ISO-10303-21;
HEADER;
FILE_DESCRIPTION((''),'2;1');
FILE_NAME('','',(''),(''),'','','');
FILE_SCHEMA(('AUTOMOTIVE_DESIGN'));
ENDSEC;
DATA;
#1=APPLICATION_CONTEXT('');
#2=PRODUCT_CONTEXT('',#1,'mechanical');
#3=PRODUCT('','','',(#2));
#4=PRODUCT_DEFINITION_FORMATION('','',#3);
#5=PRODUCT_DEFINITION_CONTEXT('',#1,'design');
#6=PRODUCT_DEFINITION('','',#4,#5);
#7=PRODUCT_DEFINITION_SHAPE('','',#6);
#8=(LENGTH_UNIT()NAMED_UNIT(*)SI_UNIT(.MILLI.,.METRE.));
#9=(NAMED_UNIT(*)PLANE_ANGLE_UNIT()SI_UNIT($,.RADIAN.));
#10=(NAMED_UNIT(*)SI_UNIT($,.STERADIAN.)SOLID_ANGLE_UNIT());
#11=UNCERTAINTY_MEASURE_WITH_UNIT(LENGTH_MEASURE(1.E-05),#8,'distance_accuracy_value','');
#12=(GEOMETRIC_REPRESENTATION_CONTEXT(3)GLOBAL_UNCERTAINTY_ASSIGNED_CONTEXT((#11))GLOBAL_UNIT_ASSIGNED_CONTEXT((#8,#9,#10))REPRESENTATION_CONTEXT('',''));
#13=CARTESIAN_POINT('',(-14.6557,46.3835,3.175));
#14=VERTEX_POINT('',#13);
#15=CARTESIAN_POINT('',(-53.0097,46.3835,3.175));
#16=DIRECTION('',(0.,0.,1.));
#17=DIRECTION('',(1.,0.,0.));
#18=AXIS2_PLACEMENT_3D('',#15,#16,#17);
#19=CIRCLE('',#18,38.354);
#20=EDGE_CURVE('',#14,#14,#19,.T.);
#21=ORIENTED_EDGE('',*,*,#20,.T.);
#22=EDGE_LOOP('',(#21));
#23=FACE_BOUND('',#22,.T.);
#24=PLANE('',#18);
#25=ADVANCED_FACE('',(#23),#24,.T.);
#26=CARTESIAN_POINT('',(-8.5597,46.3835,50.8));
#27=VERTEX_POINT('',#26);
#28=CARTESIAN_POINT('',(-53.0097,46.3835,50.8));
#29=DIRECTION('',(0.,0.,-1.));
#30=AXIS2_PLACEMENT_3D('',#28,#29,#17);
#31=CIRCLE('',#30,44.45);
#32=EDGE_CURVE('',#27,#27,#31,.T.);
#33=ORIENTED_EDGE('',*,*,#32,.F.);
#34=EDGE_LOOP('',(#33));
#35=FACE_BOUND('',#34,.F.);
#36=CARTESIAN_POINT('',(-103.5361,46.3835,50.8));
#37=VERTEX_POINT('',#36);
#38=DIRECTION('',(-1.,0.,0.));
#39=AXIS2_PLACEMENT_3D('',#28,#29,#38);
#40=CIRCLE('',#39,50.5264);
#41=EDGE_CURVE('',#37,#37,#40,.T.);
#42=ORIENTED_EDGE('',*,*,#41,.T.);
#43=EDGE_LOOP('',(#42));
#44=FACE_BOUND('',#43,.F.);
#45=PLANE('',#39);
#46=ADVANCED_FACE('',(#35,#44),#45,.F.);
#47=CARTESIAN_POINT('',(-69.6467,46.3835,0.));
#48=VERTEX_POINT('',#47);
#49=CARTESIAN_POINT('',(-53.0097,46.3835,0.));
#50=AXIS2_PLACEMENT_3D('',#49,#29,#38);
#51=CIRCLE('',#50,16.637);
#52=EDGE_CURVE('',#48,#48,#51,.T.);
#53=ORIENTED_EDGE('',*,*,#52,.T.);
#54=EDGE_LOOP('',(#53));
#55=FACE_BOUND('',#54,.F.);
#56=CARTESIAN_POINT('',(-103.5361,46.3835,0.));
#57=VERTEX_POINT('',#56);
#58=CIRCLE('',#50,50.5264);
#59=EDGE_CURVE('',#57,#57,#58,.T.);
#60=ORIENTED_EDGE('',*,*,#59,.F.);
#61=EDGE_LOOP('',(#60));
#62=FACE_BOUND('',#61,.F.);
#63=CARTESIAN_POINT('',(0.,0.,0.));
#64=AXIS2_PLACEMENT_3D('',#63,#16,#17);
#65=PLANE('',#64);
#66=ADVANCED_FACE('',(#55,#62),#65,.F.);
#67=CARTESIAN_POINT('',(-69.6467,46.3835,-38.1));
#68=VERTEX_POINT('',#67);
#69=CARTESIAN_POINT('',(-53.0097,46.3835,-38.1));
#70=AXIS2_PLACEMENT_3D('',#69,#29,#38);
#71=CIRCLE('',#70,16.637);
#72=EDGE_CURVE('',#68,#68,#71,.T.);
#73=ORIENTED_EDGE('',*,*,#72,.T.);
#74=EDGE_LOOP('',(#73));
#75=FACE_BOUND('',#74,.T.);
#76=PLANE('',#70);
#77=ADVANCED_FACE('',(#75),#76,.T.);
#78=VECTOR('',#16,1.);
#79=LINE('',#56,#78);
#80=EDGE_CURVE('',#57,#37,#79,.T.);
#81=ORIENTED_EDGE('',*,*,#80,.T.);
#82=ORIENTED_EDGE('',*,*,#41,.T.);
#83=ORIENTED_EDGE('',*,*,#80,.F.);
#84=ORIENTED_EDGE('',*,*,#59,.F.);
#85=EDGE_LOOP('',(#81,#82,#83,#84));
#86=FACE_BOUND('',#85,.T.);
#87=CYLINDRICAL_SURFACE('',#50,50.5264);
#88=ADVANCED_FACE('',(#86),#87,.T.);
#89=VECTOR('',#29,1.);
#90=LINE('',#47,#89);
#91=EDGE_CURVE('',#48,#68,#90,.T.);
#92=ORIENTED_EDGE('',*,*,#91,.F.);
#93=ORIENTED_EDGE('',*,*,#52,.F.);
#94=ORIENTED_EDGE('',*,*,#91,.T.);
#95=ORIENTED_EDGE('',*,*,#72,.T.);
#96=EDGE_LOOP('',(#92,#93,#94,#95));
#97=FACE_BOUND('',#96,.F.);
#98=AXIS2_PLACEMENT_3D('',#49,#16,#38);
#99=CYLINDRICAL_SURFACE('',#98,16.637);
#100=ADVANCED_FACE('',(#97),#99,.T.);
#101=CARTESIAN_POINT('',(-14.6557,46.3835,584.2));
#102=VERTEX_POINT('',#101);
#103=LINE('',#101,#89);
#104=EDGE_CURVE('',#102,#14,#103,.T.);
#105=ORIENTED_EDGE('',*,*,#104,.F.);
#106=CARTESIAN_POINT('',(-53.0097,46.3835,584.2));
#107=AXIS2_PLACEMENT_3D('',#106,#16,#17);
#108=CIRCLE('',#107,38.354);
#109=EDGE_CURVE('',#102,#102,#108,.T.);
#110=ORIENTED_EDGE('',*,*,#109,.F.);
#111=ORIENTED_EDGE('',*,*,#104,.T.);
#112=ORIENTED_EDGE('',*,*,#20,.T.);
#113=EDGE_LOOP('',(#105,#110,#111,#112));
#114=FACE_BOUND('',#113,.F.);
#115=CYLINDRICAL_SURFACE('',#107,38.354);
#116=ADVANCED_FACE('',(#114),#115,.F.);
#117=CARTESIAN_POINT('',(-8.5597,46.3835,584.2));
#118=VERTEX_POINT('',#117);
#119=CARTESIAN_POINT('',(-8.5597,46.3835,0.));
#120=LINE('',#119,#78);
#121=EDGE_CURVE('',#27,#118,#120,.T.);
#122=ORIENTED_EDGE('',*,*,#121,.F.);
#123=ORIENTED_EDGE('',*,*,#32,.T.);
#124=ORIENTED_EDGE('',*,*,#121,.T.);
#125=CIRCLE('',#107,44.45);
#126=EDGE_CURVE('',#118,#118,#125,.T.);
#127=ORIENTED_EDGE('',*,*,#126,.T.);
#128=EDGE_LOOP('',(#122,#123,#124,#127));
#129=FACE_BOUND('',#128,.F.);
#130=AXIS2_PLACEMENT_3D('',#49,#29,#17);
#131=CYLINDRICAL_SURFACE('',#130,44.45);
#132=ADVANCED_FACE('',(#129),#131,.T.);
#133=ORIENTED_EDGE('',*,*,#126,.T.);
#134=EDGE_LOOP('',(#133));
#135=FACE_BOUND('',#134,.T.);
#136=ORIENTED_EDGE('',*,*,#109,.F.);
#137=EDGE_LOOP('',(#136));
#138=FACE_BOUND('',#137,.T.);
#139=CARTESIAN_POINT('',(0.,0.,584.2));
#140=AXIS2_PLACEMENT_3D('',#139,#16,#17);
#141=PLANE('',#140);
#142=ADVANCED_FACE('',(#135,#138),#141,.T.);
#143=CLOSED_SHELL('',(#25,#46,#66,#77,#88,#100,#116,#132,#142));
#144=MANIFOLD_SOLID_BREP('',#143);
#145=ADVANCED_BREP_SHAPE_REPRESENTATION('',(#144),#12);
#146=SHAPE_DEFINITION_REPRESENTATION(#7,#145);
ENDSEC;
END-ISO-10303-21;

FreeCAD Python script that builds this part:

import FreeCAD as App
import Part
import Sketcher
from FreeCAD import Vector
Q = App.Units.Quantity

doc = App.newDocument("Part")
body = doc.addObject("PartDesign::Body", "Body")

# Sketch on XY plane
sketch1 = body.newObject("Sketcher::SketchObject", "Sketch")
sketch1.AttachmentSupport = (doc.getObject("XY_Plane"), [""])
sketch1.MapMode = "FlatFace"
sketch1.addGeometry(Part.Circle(Vector(-53, 46, 0), Vector(0, 0, 1), 44), False)
sketch1.addConstraint([
    Sketcher.Constraint("Diameter", 0, Q("3.5 in")),
    Sketcher.Constraint("DistanceX", 0, 3, -1, 1, Q("2.087 in")),
    Sketcher.Constraint("DistanceY", -1, 1, 0, 3, Q("46.3835 mm")),
])
pad1 = body.newObject("PartDesign::Pad", "Pad")
pad1.Profile = sketch1
pad1.Length = Q("23 in")

# Sketch on XY plane
sketch2 = body.newObject("Sketcher::SketchObject", "Sketch001")
sketch2.AttachmentSupport = (doc.getObject("XY_Plane"), [""])
sketch2.MapMode = "FlatFace"
sketch2.addGeometry(Part.Circle(Vector(-53, 46, 0), Vector(0, 0, 1), 51), False)
sketch2.addConstraint([
    Sketcher.Constraint("Diameter", 0, Q("101.0528 mm")),
    Sketcher.Constraint("DistanceX", 0, 3, -1, 1, Q("2.087 in")),
    Sketcher.Constraint("DistanceY", -1, 1, 0, 3, Q("46.3835 mm")),
])
pad2 = body.newObject("PartDesign::Pad", "Pad001")
pad2.Profile = sketch2
pad2.Length = Q("2 in")

# Sketch on XY plane
sketch3 = body.newObject("Sketcher::SketchObject", "Sketch002")
sketch3.AttachmentSupport = (doc.getObject("XY_Plane"), [""])
sketch3.MapMode = "FlatFace"
sketch3.AttachmentOffset = App.Placement(Vector(0, 0, 23 * 25.4), App.Rotation())
sketch3.addGeometry(Part.Circle(Vector(-53, 46, 0), Vector(0, 0, 1), 38), False)
sketch3.addConstraint([
    Sketcher.Constraint("Diameter", 0, Q("3.02 in")),
    Sketcher.Constraint("DistanceX", 0, 3, -1, 1, Q("2.087 in")),
    Sketcher.Constraint("DistanceY", -1, 1, 0, 3, Q("46.3835 mm")),
])
pocket1 = body.newObject("PartDesign::Pocket", "Pocket")
pocket1.Profile = sketch3
pocket1.Length = Q("22.875 in")

# Sketch on XY plane
sketch4 = body.newObject("Sketcher::SketchObject", "Sketch003")
sketch4.AttachmentSupport = (doc.getObject("XY_Plane"), [""])
sketch4.MapMode = "FlatFace"
sketch4.addGeometry(Part.Circle(Vector(-53, 46, 0), Vector(0, 0, 1), 17), False)
sketch4.addConstraint([
    Sketcher.Constraint("Diameter", 0, Q("1.31 in")),
    Sketcher.Constraint("DistanceX", 0, 3, -1, 1, Q("2.087 in")),
    Sketcher.Constraint("DistanceY", -1, 1, 0, 3, Q("46.3835 mm")),
])
pad3 = body.newObject("PartDesign::Pad", "Pad002")
pad3.Profile = sketch4
pad3.Length = Q("1.5 in")
pad3.Reversed = True

doc.recompute()
